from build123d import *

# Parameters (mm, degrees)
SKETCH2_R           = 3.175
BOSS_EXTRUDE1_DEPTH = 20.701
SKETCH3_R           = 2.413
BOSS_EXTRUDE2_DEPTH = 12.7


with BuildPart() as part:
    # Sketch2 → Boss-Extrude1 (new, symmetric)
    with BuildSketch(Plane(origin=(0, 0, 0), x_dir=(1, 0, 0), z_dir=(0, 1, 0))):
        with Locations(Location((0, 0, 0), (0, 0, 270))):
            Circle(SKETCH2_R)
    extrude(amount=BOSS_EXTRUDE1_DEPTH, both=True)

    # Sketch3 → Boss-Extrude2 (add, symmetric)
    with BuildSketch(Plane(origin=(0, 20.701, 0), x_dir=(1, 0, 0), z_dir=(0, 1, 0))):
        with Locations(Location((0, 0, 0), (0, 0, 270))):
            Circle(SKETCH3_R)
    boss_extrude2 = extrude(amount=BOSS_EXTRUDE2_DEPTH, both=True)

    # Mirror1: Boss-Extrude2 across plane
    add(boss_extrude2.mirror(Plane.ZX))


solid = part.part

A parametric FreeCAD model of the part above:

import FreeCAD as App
import Part
import Sketcher
from FreeCAD import Vector
Q = App.Units.Quantity

doc = App.newDocument("Part")
body = doc.addObject("PartDesign::Body", "Body")

sketch1 = body.newObject("Sketcher::SketchObject", "Sketch")
sketch1.AttachmentSupport = (doc.getObject("XZ_Plane"), [""])
sketch1.MapMode = "FlatFace"
sketch1.addGeometry(Part.Circle(Vector(0, 0, 0), Vector(0, 0, 1), 3.175), False)
sketch1.addConstraint([
    Sketcher.Constraint("Coincident", 0, 3, -1, 1),
    Sketcher.Constraint("Diameter", 0, Q("0.25 in")),
])
pad1 = body.newObject("PartDesign::Pad", "Pad")
pad1.Profile = sketch1
pad1.Length = Q("1.63 in")
pad1.Midplane = True

sketch2 = body.newObject("Sketcher::SketchObject", "Sketch001")
sketch2.AttachmentSupport = (doc.getObject("XZ_Plane"), [""])
sketch2.MapMode = "FlatFace"
sketch2.AttachmentOffset = App.Placement(Vector(0, 0, -0.815 * 25.4), App.Rotation())
sketch2.addGeometry(Part.Circle(Vector(0, 0, 0), Vector(0, 0, 1), 2.413), False)
sketch2.addConstraint([
    Sketcher.Constraint("Coincident", 0, 3, -1, 1),
    Sketcher.Constraint("Diameter", 0, Q("0.19 in")),
])
pad2 = body.newObject("PartDesign::Pad", "Pad001")
pad2.Profile = sketch2
pad2.Length = Q("1 in")
pad2.Midplane = True
doc.recompute()

mirrored = body.newObject("PartDesign::Mirrored", "Mirrored")
mirrored.Originals = [pad2]
mirrored.MirrorPlane = (doc.getObject("XZ_Plane"), [""])
body.Tip = mirrored

doc.recompute()
